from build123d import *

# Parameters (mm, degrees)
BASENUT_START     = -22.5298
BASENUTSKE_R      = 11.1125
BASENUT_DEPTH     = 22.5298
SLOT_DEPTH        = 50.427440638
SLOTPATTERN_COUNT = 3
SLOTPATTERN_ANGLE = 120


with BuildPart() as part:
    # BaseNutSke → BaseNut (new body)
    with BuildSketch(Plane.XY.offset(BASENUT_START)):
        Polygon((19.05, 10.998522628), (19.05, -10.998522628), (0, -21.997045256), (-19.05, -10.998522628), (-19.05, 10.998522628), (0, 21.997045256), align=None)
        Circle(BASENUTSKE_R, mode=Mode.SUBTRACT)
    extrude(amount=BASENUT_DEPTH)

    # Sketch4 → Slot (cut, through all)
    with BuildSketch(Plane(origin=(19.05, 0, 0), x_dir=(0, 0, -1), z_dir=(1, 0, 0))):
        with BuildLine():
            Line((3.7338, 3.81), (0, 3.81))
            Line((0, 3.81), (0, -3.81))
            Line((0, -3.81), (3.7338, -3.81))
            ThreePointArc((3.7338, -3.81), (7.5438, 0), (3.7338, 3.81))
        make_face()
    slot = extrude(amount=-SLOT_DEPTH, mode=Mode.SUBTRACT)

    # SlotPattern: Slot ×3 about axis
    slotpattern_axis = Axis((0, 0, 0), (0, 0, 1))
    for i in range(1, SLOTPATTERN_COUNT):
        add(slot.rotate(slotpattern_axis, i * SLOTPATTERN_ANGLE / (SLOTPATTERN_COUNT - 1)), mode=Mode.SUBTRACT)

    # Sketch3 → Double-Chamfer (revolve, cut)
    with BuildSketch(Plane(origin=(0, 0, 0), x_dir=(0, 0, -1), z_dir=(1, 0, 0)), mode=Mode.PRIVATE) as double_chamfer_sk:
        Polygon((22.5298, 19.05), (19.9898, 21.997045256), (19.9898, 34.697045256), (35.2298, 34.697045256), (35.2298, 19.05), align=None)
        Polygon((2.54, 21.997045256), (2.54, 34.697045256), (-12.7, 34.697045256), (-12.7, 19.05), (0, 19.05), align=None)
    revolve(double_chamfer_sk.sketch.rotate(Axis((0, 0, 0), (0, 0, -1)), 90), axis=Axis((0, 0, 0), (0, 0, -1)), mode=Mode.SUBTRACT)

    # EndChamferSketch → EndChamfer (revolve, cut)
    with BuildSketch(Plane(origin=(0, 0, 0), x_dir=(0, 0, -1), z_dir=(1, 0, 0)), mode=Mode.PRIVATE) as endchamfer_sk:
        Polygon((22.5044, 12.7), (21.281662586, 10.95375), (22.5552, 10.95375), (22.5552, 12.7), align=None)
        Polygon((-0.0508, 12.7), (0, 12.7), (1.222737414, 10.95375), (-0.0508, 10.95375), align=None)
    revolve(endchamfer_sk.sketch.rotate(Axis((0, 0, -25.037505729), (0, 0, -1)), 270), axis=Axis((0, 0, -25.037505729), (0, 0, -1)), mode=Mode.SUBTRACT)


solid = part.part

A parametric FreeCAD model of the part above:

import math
import FreeCAD as App
import Part
import Sketcher
Q = App.Units.Quantity


def add_polygon(sketch, points):
    """Adds a closed chain of lines whose ends are joined by coincident constraints."""
    first, n = sketch.GeometryCount, len(points)
    for a, b in zip(points, points[1:] + points[:1]):
        sketch.addGeometry(Part.LineSegment(App.Vector(*a, 0), App.Vector(*b, 0)), False)
    for i in range(n):
        sketch.addConstraint(Sketcher.Constraint("Coincident", first + i, 2, first + (i + 1) % n, 1))

doc = App.newDocument("Part")
body = doc.addObject("PartDesign::Body", "Body")

# Sketch on XY plane
sketch1 = body.newObject("Sketcher::SketchObject", "Sketch")
sketch1.AttachmentSupport = (doc.getObject("XY_Plane"), [""])
sketch1.MapMode = "FlatFace"
sketch1.AttachmentOffset = App.Placement(App.Vector(0, 0, -0.887 * 25.4), App.Rotation())
add_polygon(sketch1, [(19.05, -10.998523), (19.05, 10.998523), (0, 21.997045), (-19.05, 10.998523), (-19.05, -10.998523), (0, -21.997045)])  # lines 0-5
sketch1.addGeometry(Part.Circle(App.Vector(0, 0, 0), App.Vector(0, 0, 1), 11.1125), False)  # 6
sketch1.addConstraint(Sketcher.Constraint("Vertical", 0))
sketch1.addConstraint(Sketcher.Constraint("Vertical", 3))
sketch1.addConstraint(Sketcher.Constraint("Coincident", 6, 3, -1, 1))
sketch1.addConstraint(Sketcher.Constraint("Symmetric", 0, 2, 3, 2, -1, 1))
sketch1.addConstraint(Sketcher.Constraint("Symmetric", 1, 2, 4, 2, -1, 1))
sketch1.addConstraint(Sketcher.Constraint("PointOnObject", 1, 2, -2))
sketch1.addConstraint(Sketcher.Constraint("Parallel", 2, 5))
sketch1.addConstraint(Sketcher.Constraint("Horizontal", 0, 2, 2, 2))
sketch1.addConstraint(Sketcher.Constraint("Diameter", 6, Q("0.875 in")))
sketch1.addConstraint(Sketcher.Constraint("Angle", 1, Q("150 deg")))
sketch1.addConstraint(Sketcher.Constraint("DistanceX", 2, 2, 0, 2, Q("1.5 in")))
sketch1.addConstraint(Sketcher.Constraint("DistanceY", 0, 1, 0, 2, 21.997045))
pad1 = body.newObject("PartDesign::Pad", "Pad")
pad1.Profile = sketch1
pad1.Length = Q("0.887 in")

# Sketch on YZ plane
sketch2 = body.newObject("Sketcher::SketchObject", "Sketch001")
sketch2.AttachmentSupport = (doc.getObject("YZ_Plane"), [""])
sketch2.MapMode = "FlatFace"
sketch2.AttachmentOffset = App.Placement(App.Vector(0, 0, 0.75 * 25.4), App.Rotation())
sketch2.addGeometry(Part.LineSegment(App.Vector(3.81, -3.7338, 0), App.Vector(3.81, 0, 0)), False)
sketch2.addGeometry(Part.LineSegment(App.Vector(3.81, 0, 0), App.Vector(-3.81, 0, 0)), False)
sketch2.addGeometry(Part.LineSegment(App.Vector(-3.81, 0, 0), App.Vector(-3.81, -3.7338, 0)), False)
sketch2.addGeometry(Part.ArcOfCircle(Part.Circle(App.Vector(0, -3.7338, 0), App.Vector(0, 0, 1), 3.81), math.radians(180), math.radians(360)), False)
sketch2.addConstraint(Sketcher.Constraint("Coincident", 0, 2, 1, 1))
sketch2.addConstraint(Sketcher.Constraint("Coincident", 1, 2, 2, 1))
sketch2.addConstraint(Sketcher.Constraint("Tangent", 2, 2, 3, 1))
sketch2.addConstraint(Sketcher.Constraint("Tangent", 3, 2, 0, 1))
sketch2.addConstraint(Sketcher.Constraint("Vertical", 0))
sketch2.addConstraint(Sketcher.Constraint("Horizontal", 1))
sketch2.addConstraint(Sketcher.Constraint("Vertical", 2))
sketch2.addConstraint(Sketcher.Constraint("Symmetric", 0, 2, 1, 2, -1, 1))
sketch2.addConstraint(Sketcher.Constraint("Radius", 3, Q("0.15 in")))
sketch2.addConstraint(Sketcher.Constraint("DistanceY", 0, 1, 0, 2, Q("0.147 in")))
pocket1 = body.newObject("PartDesign::Pocket", "Pocket")
pocket1.Profile = sketch2
pocket1.Type = "ThroughAll"
doc.recompute()

polarpattern = body.newObject("PartDesign::PolarPattern", "PolarPattern")
polarpattern.Originals = [pocket1]
polarpattern.Axis = (doc.getObject("Z_Axis"), [""])
polarpattern.Angle = 120
polarpattern.Occurrences = 3
body.Tip = polarpattern

# Sketch on YZ plane
sketch3 = body.newObject("Sketcher::SketchObject", "Sketch002")
sketch3.AttachmentSupport = (doc.getObject("YZ_Plane"), [""])
sketch3.MapMode = "FlatFace"
add_polygon(sketch3, [(21.997045, -19.9898), (19.05, -22.5298), (19.05, -35.2298), (34.697045, -35.2298), (34.697045, -19.9898)])  # lines 0-4
add_polygon(sketch3, [(21.997045, -2.54), (34.697045, -2.54), (34.697045, 12.7), (19.05, 12.7), (19.05, 0)])  # lines 5-9
sketch3.addConstraint(Sketcher.Constraint("Vertical", 1))
sketch3.addConstraint(Sketcher.Constraint("Horizontal", 2))
sketch3.addConstraint(Sketcher.Constraint("Vertical", 3))
sketch3.addConstraint(Sketcher.Constraint("Horizontal", 4))
sketch3.addConstraint(Sketcher.Constraint("Horizontal", 5))
sketch3.addConstraint(Sketcher.Constraint("Vertical", 6))
sketch3.addConstraint(Sketcher.Constraint("Horizontal", 7))
sketch3.addConstraint(Sketcher.Constraint("Vertical", 8))
sketch3.addConstraint(Sketcher.Constraint("PointOnObject", 8, 2, -1))
sketch3.addConstraint(Sketcher.Constraint("Vertical", 3, 2, 5, 2))
sketch3.addConstraint(Sketcher.Constraint("Vertical", 1, 2, 7, 2))
sketch3.addConstraint(Sketcher.Constraint("Vertical", 4, 2, 9, 2))
sketch3.addConstraint(Sketcher.Constraint("Equal", 5, 1))
sketch3.addConstraint(Sketcher.Constraint("Equal", 3, 6))
sketch3.addConstraint(Sketcher.Constraint("Equal", 1, 8))
sketch3.addConstraint(Sketcher.Constraint("DistanceX", 4, 2, 4, 1, Q("0.5 in")))
sketch3.addConstraint(Sketcher.Constraint("DistanceY", 3, 1, 3, 2, Q("0.6 in")))
sketch3.addConstraint(Sketcher.Constraint("DistanceX", -1, 1, 0, 2, Q("0.75 in")))
sketch3.addConstraint(Sketcher.Constraint("DistanceY", 0, 2, -1, 1, Q("0.887 in")))
sketch3.addConstraint(Sketcher.Constraint("Distance", 0, 3.890588))
groove = body.newObject("PartDesign::Groove", "Groove")
groove.Profile = sketch3
groove.ReferenceAxis = (sketch3, ["V_Axis"])
groove.Angle = 360

# Sketch on YZ plane
sketch4 = body.newObject("Sketcher::SketchObject", "Sketch003")
sketch4.AttachmentSupport = (doc.getObject("YZ_Plane"), [""])
sketch4.MapMode = "FlatFace"
add_polygon(sketch4, [(12.7, -22.5044), (10.95375, -21.281663), (10.95375, -22.5552), (12.7, -22.5552)])  # lines 0-3
add_polygon(sketch4, [(12.7, 0), (12.7, 0.0508), (10.95375, 0.0508), (10.95375, -1.222737)])  # lines 4-7
sketch4.addConstraint(Sketcher.Constraint("Vertical", 1))
sketch4.addConstraint(Sketcher.Constraint("Horizontal", 2))
sketch4.addConstraint(Sketcher.Constraint("Vertical", 3))
sketch4.addConstraint(Sketcher.Constraint("Vertical", 4))
sketch4.addConstraint(Sketcher.Constraint("Horizontal", 5))
sketch4.addConstraint(Sketcher.Constraint("Vertical", 6))
sketch4.addConstraint(Sketcher.Constraint("PointOnObject", 7, 2, -1))
sketch4.addConstraint(Sketcher.Constraint("Vertical", 3, 2, 4, 2))
sketch4.addConstraint(Sketcher.Constraint("Vertical", 1, 2, 5, 2))
sketch4.addConstraint(Sketcher.Constraint("Equal", 3, 4))
sketch4.addConstraint(Sketcher.Constraint("Equal", 1, 6))
sketch4.addConstraint(Sketcher.Constraint("Angle", 0, Q("145 deg")))
sketch4.addConstraint(Sketcher.Constraint("DistanceX", -1, 1, 2, 2, Q("0.5 in")))
sketch4.addConstraint(Sketcher.Constraint("DistanceY", 3, 1, 3, 2, Q("0.002 in")))
sketch4.addConstraint(Sketcher.Constraint("DistanceY", 2, 2, 4, 2, Q("0.89 in")))
sketch4.addConstraint(Sketcher.Constraint("DistanceX", 2, 1, 2, 2, 1.74625))
groove2 = body.newObject("PartDesign::Groove", "Groove001")
groove2.Profile = sketch4
groove2.ReferenceAxis = (sketch4, ["V_Axis"])
groove2.Angle = 360

doc.recompute()
